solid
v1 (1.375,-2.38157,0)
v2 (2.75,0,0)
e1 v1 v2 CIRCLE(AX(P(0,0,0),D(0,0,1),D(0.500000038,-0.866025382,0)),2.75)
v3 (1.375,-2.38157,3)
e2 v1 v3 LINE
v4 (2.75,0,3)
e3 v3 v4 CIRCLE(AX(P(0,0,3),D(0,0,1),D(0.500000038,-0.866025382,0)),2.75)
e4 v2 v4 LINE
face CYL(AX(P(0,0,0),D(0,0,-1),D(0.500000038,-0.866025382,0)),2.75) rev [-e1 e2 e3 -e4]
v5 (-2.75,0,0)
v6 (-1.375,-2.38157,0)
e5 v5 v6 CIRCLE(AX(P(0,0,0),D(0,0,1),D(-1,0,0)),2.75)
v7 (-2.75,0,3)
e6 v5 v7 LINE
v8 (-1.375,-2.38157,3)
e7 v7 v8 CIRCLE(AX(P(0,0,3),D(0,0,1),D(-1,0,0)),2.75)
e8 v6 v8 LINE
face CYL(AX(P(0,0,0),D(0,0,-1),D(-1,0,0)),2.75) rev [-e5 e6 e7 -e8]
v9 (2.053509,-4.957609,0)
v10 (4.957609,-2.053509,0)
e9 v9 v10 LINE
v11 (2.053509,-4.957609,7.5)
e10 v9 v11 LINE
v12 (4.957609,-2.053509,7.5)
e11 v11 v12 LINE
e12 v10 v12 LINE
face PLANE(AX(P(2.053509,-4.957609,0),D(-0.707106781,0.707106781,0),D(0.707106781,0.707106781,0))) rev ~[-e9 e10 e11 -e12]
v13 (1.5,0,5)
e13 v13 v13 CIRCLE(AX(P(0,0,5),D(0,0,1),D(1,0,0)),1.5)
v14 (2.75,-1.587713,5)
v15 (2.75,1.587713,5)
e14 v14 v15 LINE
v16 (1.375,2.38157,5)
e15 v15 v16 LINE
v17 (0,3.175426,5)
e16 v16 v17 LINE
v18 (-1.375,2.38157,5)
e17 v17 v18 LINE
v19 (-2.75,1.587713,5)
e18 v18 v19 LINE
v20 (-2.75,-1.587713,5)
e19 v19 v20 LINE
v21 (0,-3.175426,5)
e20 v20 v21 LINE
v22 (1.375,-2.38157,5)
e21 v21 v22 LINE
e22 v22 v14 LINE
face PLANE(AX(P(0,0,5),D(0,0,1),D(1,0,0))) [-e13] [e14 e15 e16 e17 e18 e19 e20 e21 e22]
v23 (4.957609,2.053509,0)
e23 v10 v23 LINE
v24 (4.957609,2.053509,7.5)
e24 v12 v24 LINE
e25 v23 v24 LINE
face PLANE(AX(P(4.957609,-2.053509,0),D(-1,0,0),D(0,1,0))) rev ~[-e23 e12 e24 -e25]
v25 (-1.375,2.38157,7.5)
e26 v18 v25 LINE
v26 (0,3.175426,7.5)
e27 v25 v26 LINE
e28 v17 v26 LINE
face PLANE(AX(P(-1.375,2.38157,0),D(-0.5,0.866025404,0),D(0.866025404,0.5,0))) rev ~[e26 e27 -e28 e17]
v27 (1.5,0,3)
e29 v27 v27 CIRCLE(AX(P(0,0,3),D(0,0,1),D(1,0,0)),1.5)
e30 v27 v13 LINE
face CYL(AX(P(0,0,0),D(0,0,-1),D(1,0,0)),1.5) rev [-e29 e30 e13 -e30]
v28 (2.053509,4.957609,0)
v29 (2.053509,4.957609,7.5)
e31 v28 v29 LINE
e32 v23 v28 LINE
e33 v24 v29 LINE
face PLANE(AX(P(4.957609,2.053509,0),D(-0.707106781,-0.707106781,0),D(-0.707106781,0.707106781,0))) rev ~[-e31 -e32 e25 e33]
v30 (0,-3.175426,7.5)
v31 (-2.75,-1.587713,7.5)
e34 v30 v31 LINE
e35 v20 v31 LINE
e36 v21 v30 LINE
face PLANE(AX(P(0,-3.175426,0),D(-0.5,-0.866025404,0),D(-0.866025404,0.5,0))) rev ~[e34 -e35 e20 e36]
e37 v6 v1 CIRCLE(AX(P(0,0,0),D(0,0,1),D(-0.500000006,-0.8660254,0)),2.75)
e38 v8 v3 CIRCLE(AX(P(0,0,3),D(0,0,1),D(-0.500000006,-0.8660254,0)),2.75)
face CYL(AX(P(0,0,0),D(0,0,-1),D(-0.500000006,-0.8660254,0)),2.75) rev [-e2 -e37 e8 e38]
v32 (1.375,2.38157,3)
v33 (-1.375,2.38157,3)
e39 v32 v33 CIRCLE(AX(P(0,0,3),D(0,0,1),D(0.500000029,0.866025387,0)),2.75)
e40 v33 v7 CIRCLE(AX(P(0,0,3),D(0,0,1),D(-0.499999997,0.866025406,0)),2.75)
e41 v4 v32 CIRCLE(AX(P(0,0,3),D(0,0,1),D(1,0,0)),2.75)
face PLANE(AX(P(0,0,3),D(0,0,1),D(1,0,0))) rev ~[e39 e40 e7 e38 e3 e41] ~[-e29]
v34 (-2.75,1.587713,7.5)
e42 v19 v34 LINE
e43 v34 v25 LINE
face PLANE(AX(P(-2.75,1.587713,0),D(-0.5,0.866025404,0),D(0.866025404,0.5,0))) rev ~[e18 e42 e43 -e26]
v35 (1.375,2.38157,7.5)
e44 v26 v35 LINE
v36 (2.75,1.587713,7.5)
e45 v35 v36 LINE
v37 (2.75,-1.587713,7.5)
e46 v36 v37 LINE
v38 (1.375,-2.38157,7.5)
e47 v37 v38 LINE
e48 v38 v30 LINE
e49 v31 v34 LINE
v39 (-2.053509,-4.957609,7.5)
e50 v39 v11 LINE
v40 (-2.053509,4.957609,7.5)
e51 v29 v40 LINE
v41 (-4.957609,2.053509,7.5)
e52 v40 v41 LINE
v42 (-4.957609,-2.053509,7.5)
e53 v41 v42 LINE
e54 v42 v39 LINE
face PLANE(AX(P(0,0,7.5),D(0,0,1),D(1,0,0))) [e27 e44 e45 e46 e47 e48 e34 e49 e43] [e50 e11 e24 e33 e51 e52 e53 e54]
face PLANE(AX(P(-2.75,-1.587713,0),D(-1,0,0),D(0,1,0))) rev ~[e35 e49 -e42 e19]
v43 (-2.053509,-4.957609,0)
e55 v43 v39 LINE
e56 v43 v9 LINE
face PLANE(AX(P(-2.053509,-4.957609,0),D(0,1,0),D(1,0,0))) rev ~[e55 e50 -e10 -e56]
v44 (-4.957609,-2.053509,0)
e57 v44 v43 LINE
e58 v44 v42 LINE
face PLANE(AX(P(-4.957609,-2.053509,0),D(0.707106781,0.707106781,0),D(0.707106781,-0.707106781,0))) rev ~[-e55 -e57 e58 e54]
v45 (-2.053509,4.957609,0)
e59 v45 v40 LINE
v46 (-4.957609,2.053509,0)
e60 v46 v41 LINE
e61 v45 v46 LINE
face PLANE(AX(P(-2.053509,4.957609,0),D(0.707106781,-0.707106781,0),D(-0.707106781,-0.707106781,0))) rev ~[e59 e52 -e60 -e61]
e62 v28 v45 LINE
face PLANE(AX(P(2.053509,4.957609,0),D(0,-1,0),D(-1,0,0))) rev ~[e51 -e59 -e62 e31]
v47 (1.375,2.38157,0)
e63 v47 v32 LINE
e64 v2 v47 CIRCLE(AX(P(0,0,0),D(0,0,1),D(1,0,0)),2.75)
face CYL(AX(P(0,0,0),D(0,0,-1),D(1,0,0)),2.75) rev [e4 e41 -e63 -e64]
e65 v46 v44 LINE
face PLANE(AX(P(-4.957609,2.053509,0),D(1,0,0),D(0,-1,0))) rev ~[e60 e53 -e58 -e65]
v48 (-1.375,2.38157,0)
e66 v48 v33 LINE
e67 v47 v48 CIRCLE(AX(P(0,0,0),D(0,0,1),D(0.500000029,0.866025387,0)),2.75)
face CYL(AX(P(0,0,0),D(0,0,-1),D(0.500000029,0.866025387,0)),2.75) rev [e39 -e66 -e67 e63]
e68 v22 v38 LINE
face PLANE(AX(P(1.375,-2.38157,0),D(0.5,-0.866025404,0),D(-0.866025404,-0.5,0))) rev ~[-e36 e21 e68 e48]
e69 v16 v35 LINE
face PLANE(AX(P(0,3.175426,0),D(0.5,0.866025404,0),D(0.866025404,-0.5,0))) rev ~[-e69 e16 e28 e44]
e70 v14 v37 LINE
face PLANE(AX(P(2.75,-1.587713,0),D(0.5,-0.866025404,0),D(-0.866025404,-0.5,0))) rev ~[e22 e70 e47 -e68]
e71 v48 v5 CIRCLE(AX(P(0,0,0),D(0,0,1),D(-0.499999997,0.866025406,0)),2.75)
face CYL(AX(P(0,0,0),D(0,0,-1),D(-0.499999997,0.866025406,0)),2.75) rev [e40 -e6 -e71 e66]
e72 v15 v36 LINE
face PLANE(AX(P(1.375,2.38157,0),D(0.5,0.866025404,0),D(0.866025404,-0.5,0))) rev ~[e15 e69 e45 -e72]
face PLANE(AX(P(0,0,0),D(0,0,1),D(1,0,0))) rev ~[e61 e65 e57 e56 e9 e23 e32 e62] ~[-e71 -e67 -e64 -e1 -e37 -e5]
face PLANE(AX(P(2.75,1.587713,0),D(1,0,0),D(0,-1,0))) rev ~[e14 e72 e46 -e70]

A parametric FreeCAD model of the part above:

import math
import FreeCAD as App
import Part
import Sketcher

V = App.Vector
Q = App.Units.Quantity


def add_polygon(sketch, points):
    """Adds a closed chain of lines whose ends are joined by coincident constraints."""
    first, n = sketch.GeometryCount, len(points)
    for a, b in zip(points, points[1:] + points[:1]):
        sketch.addGeometry(Part.LineSegment(App.Vector(*a, 0), App.Vector(*b, 0)), False)
    for i in range(n):
        sketch.addConstraint(Sketcher.Constraint("Coincident", first + i, 2, first + (i + 1) % n, 1))

doc = App.newDocument("Part")
body = doc.addObject("PartDesign::Body", "Body")

sketch1 = body.newObject("Sketcher::SketchObject", "Sketch")
sketch1.AttachmentSupport = (doc.getObject("XY_Plane"), [""])
sketch1.MapMode = "FlatFace"
add_polygon(sketch1, [(2.1, 5), (-2.1, 5), (-5, 2.1), (-5, -2.1), (-2.1, -5), (2.1, -5), (5, -2.1), (5, 2.1)])
add_polygon(sketch1, [(1.4, 2.4), (2.8, 1.6), (2.8, -1.6), (1.4, -2.4), (0, -3.2), (-2.8, -1.6), (-2.8, 1.6), (-1.4, 2.4), (0, 3.2)])
sketch1.addConstraint([
    Sketcher.Constraint("Horizontal", 0),
    Sketcher.Constraint("Vertical", 2),
    Sketcher.Constraint("Horizontal", 4),
    Sketcher.Constraint("Vertical", 6),
    Sketcher.Constraint("Vertical", 9),
    Sketcher.Constraint("Vertical", 13),
    Sketcher.Constraint("Symmetric", 0, 2, 4, 2, -1, 1),
    Sketcher.Constraint("Symmetric", 1, 2, 5, 2, -1, 1),
    Sketcher.Constraint("Symmetric", 8, 2, 12, 2, -1, 1),
    Sketcher.Constraint("Symmetric", 10, 2, 14, 2, -1, 1),
    Sketcher.Constraint("Symmetric", 11, 2, 15, 2, -1, 1),
    Sketcher.Constraint("Symmetric", 14, 2, 16, 2, -2),
    Sketcher.Constraint("PointOnObject", 11, 2, -2),
    Sketcher.Constraint("Perpendicular", 1, 3),
    Sketcher.Constraint("Perpendicular", 5, 7),
    Sketcher.Constraint("Parallel", 10, 11),
    Sketcher.Constraint("Parallel", 8, 12),
    Sketcher.Constraint("Parallel", 11, 14),
    Sketcher.Constraint("Horizontal", 2, 2, 5, 2),
    Sketcher.Constraint("Horizontal", 1, 2, 6, 2),
    Sketcher.Constraint("Vertical", 0, 2, 3, 2),
    Sketcher.Constraint("Equal", 4, 2),
    Sketcher.Constraint("Equal", 10, 11),
    Sketcher.Constraint("Angle", 8, Q("-30 deg")),
    Sketcher.Constraint("DistanceX", 13, 2, 8, 2, 5.5),
    Sketcher.Constraint("DistanceX", 0, 2, 0, 1, 4.107018),
    Sketcher.Constraint("DistanceX", 1, 2, 0, 2, 2.9041),
    Sketcher.Constraint("DistanceY", 9, 2, 9, 1, 3.175426),
])
pad1 = body.newObject("PartDesign::Pad", "Pad")
pad1.Profile = sketch1
pad1.Length = 7.5

sketch2 = body.newObject("Sketcher::SketchObject", "Sketch001")
sketch2.AttachmentSupport = (doc.getObject("XY_Plane"), [""])
sketch2.MapMode = "FlatFace"
sketch2.addGeometry([
    Part.ArcOfCircle(Part.Circle(V(0, 0, 0), V(0, 0, 1), 2.8), math.radians(120), math.radians(180)),
    Part.LineSegment(V(-1.4, 2.4, 0), V(-2.8, 1.6, 0)),
    Part.LineSegment(V(-2.8, 1.6, 0), V(-2.8, 0, 0)),
    Part.ArcOfCircle(Part.Circle(V(0, 0, 0), V(0, 0, 1), 2.8), math.radians(60), math.radians(120)),
    Part.LineSegment(V(1.4, 2.4, 0), V(0, 3.2, 0)),
    Part.LineSegment(V(0, 3.2, 0), V(-1.4, 2.4, 0)),
    Part.ArcOfCircle(Part.Circle(V(0, 0, 0), V(0, 0, 1), 2.8), math.radians(0), math.radians(60)),
    Part.LineSegment(V(2.8, 0, 0), V(2.8, 1.6, 0)),
    Part.LineSegment(V(2.8, 1.6, 0), V(1.4, 2.4, 0)),
    Part.LineSegment(V(2.8, -1.6, 0), V(2.8, 0, 0)),
    Part.ArcOfCircle(Part.Circle(V(0, 0, 0), V(0, 0, 1), 2.8), math.radians(-60), math.radians(0)),
    Part.LineSegment(V(1.4, -2.4, 0), V(2.8, -1.6, 0)),
    Part.LineSegment(V(0, -3.2, 0), V(1.4, -2.4, 0)),
    Part.ArcOfCircle(Part.Circle(V(0, 0, 0), V(0, 0, 1), 2.8), math.radians(-120), math.radians(-60)),
    Part.LineSegment(V(-1.4, -2.4, 0), V(0, -3.2, 0)),
    Part.LineSegment(V(-2.8, -1.6, 0), V(-1.4, -2.4, 0)),
    Part.ArcOfCircle(Part.Circle(V(0, 0, 0), V(0, 0, 1), 2.8), math.radians(180), math.radians(240)),
    Part.LineSegment(V(-2.8, 0, 0), V(-2.8, -1.6, 0)),
], False)
sketch2.addConstraint([
    Sketcher.Constraint("Tangent", 0, 1, 1, 1),
    Sketcher.Constraint("Coincident", 1, 2, 2, 1),
    Sketcher.Constraint("Tangent", 2, 2, 0, 2),
    Sketcher.Constraint("Tangent", 3, 1, 4, 1),
    Sketcher.Constraint("Coincident", 4, 2, 5, 1),
    Sketcher.Constraint("Tangent", 5, 2, 3, 2),
    Sketcher.Constraint("Tangent", 6, 1, 7, 1),
    Sketcher.Constraint("Coincident", 7, 2, 8, 1),
    Sketcher.Constraint("Tangent", 8, 2, 6, 2),
    Sketcher.Constraint("Tangent", 9, 2, 10, 2),
    Sketcher.Constraint("Tangent", 10, 1, 11, 1),
    Sketcher.Constraint("Coincident", 11, 2, 9, 1),
    Sketcher.Constraint("Tangent", 12, 2, 13, 2),
    Sketcher.Constraint("Tangent", 13, 1, 14, 1),
    Sketcher.Constraint("Coincident", 14, 2, 12, 1),
    Sketcher.Constraint("Tangent", 15, 2, 16, 2),
    Sketcher.Constraint("Tangent", 16, 1, 17, 1),
    Sketcher.Constraint("Coincident", 17, 2, 15, 1),
    Sketcher.Constraint("Vertical", 2),
    Sketcher.Constraint("Vertical", 7),
    Sketcher.Constraint("Vertical", 9),
    Sketcher.Constraint("Vertical", 17),
    Sketcher.Constraint("Coincident", 0, 3, -1, 1),
    Sketcher.Constraint("Coincident", 3, 3, -1, 1),
    Sketcher.Constraint("Coincident", 6, 3, -1, 1),
    Sketcher.Constraint("Coincident", 10, 3, -1, 1),
    Sketcher.Constraint("Coincident", 13, 3, -1, 1),
    Sketcher.Constraint("Coincident", 16, 3, -1, 1),
    Sketcher.Constraint("Coincident", 5, 2, 0, 1),
    Sketcher.Constraint("Coincident", 8, 2, 3, 1),
    Sketcher.Constraint("Coincident", 12, 2, 10, 1),
    Sketcher.Constraint("Coincident", 15, 2, 13, 1),
    Sketcher.Constraint("Equal", 6, 10),
    Sketcher.Constraint("Symmetric", 4, 2, 14, 2, -1, 1),
    Sketcher.Constraint("PointOnObject", 4, 2, -2),
    Sketcher.Constraint("Equal", 1, 4),
    Sketcher.Constraint("Radius", 0, 2.75),
])
pad2 = body.newObject("PartDesign::Pad", "Pad001")
pad2.Profile = sketch2
pad2.Length = 5

sketch3 = body.newObject("Sketcher::SketchObject", "Sketch002")
sketch3.AttachmentSupport = (doc.getObject("XY_Plane"), [""])
sketch3.MapMode = "FlatFace"
sketch3.addGeometry([
    Part.ArcOfCircle(Part.Circle(V(0, 0, 0), V(0, 0, 1), 2.8), math.radians(-60), math.radians(0)),
    Part.ArcOfCircle(Part.Circle(V(0, 0, 0), V(0, 0, 1), 2.8), math.radians(0), math.radians(60)),
    Part.ArcOfCircle(Part.Circle(V(0, 0, 0), V(0, 0, 1), 2.8), math.radians(60), math.radians(120)),
    Part.ArcOfCircle(Part.Circle(V(0, 0, 0), V(0, 0, 1), 2.8), math.radians(120), math.radians(180)),
    Part.ArcOfCircle(Part.Circle(V(0, 0, 0), V(0, 0, 1), 2.8), math.radians(180), math.radians(240)),
    Part.ArcOfCircle(Part.Circle(V(0, 0, 0), V(0, 0, 1), 2.8), math.radians(-120), math.radians(-60)),
    Part.Circle(V(0, 0, 0), V(0, 0, 1), 1.5),
], False)
sketch3.addConstraint([
    Sketcher.Constraint("Tangent", 0, 2, 1, 1),
    Sketcher.Constraint("Tangent", 1, 2, 2, 1),
    Sketcher.Constraint("Tangent", 2, 2, 3, 1),
    Sketcher.Constraint("Tangent", 3, 2, 4, 1),
    Sketcher.Constraint("Tangent", 4, 2, 5, 1),
    Sketcher.Constraint("Tangent", 5, 2, 0, 1),
    Sketcher.Constraint("Coincident", 0, 3, -1, 1),
    Sketcher.Constraint("Coincident", 2, 3, -1, 1),
    Sketcher.Constraint("Coincident", 6, 3, -1, 1),
    Sketcher.Constraint("Equal", 2, 3),
    Sketcher.Constraint("PointOnObject", 0, 2, -1),
    Sketcher.Constraint("PointOnObject", 3, 2, -1),
    Sketcher.Constraint("Horizontal", 1, 2, 2, 2),
    Sketcher.Constraint("Horizontal", 4, 2, 5, 2),
    Sketcher.Constraint("Vertical", 2, 2, 4, 2),
    Sketcher.Constraint("Diameter", 6, 3.0),
    Sketcher.Constraint("Radius", 0, 2.75),
    Sketcher.Constraint("DistanceX", -1, 1, 1, 2, 1.375),
])
pad3 = body.newObject("PartDesign::Pad", "Pad002")
pad3.Profile = sketch3
pad3.Length = 5

sketch4 = body.newObject("Sketcher::SketchObject", "Sketch003")
sketch4.AttachmentSupport = (doc.getObject("XY_Plane"), [""])
sketch4.MapMode = "FlatFace"
sketch4.addGeometry([
    Part.ArcOfCircle(Part.Circle(V(0, 0, 0), V(0, 0, 1), 2.8), math.radians(-60), math.radians(0)),
    Part.ArcOfCircle(Part.Circle(V(0, 0, 0), V(0, 0, 1), 2.8), math.radians(0), math.radians(60)),
    Part.ArcOfCircle(Part.Circle(V(0, 0, 0), V(0, 0, 1), 2.8), math.radians(60), math.radians(120)),
    Part.ArcOfCircle(Part.Circle(V(0, 0, 0), V(0, 0, 1), 2.8), math.radians(120), math.radians(180)),
    Part.ArcOfCircle(Part.Circle(V(0, 0, 0), V(0, 0, 1), 2.8), math.radians(180), math.radians(240)),
    Part.ArcOfCircle(Part.Circle(V(0, 0, 0), V(0, 0, 1), 2.8), math.radians(-120), math.radians(-60)),
    Part.Circle(V(0, 0, 0), V(0, 0, 1), 1.5),
], False)
sketch4.addConstraint([
    Sketcher.Constraint("Tangent", 0, 2, 1, 1),
    Sketcher.Constraint("Tangent", 1, 2, 2, 1),
    Sketcher.Constraint("Tangent", 2, 2, 3, 1),
    Sketcher.Constraint("Tangent", 3, 2, 4, 1),
    Sketcher.Constraint("Tangent", 4, 2, 5, 1),
    Sketcher.Constraint("Tangent", 5, 2, 0, 1),
    Sketcher.Constraint("Coincident", 0, 3, -1, 1),
    Sketcher.Constraint("Coincident", 2, 3, -1, 1),
    Sketcher.Constraint("Coincident", 6, 3, -1, 1),
    Sketcher.Constraint("Equal", 2, 3),
    Sketcher.Constraint("PointOnObject", 0, 2, -1),
    Sketcher.Constraint("PointOnObject", 3, 2, -1),
    Sketcher.Constraint("Horizontal", 1, 2, 2, 2),
    Sketcher.Constraint("Horizontal", 4, 2, 5, 2),
    Sketcher.Constraint("Vertical", 2, 2, 4, 2),
    Sketcher.Constraint("Diameter", 6, 3.0),
    Sketcher.Constraint("Radius", 0, 2.75),
    Sketcher.Constraint("DistanceX", -1, 1, 1, 2, 1.375),
])
pocket1 = body.newObject("PartDesign::Pocket", "Pocket")
pocket1.Profile = sketch4
pocket1.Length = 3
pocket1.Reversed = True

doc.recompute()
